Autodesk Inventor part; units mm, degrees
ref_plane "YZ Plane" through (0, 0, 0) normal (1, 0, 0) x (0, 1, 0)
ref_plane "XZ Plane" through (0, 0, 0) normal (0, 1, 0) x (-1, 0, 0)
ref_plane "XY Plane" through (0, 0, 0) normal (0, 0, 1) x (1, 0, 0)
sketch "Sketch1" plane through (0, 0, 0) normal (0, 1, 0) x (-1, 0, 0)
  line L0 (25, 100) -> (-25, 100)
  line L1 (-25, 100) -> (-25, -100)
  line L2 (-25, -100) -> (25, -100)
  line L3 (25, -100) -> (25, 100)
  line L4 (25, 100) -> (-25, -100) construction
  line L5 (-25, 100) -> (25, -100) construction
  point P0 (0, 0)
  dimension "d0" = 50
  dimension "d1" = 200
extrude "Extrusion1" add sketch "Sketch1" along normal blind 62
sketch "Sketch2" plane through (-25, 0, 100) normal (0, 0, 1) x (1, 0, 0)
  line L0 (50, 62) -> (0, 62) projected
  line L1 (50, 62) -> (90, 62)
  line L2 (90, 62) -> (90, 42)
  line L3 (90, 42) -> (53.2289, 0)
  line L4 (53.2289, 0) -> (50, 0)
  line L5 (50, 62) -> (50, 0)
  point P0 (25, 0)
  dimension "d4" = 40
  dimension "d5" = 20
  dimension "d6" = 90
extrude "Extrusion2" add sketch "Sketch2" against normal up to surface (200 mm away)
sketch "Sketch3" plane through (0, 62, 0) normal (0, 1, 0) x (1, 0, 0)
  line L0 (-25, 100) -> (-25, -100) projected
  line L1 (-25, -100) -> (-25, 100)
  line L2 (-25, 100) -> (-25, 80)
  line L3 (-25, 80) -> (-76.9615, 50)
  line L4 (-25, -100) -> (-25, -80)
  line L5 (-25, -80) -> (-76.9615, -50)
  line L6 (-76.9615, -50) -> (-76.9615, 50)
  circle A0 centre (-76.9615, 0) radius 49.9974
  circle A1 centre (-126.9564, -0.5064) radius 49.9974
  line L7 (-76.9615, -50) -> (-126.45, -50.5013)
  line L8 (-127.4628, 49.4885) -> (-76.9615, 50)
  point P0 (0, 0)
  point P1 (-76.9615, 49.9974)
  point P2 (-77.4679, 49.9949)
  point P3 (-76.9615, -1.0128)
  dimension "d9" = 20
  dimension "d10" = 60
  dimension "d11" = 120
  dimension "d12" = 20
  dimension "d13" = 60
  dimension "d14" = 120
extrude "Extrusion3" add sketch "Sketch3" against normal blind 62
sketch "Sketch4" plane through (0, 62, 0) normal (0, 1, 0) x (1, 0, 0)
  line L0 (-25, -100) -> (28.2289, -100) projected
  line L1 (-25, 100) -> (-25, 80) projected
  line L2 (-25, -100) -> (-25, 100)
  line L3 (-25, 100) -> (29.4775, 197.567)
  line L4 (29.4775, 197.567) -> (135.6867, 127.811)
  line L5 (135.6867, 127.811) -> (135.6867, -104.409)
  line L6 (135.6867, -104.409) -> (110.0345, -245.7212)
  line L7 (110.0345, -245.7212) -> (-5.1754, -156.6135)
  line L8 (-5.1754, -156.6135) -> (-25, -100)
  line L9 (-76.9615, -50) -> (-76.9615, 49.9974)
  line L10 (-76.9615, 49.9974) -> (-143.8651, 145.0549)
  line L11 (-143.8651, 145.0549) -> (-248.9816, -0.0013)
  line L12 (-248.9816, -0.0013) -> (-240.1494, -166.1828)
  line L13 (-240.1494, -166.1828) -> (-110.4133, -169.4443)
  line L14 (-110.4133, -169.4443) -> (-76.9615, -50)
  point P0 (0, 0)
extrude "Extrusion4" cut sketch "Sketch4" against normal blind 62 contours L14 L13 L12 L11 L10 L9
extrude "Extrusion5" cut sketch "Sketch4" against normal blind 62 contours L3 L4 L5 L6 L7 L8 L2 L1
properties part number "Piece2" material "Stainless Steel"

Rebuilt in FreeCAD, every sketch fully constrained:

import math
import FreeCAD as App
import Part
import Sketcher
from FreeCAD import Vector
Q = App.Units.Quantity

doc = App.newDocument("Part")
body = doc.addObject("PartDesign::Body", "Body")

# Sketch on XZ plane
sketch1 = doc.addObject("Sketcher::SketchObject", "Sketch")
body.addObject(sketch1)
sketch1.AttachmentSupport = (doc.XZ_Plane, [""])
sketch1.MapMode = "FlatFace"
sketch1.addGeometry([
    Part.LineSegment(Vector(-25, -100, 0), Vector(-25, 100, 0)),
    Part.LineSegment(Vector(-25, 100, 0), Vector(25, 100, 0)),
    Part.LineSegment(Vector(25, 100, 0), Vector(25, -100, 0)),
    Part.LineSegment(Vector(25, -100, 0), Vector(-25, -100, 0)),
], False)
sketch1.addConstraint([
    Sketcher.Constraint("Coincident", 0, 2, 1, 1),
    Sketcher.Constraint("Coincident", 1, 2, 2, 1),
    Sketcher.Constraint("Coincident", 2, 2, 3, 1),
    Sketcher.Constraint("Coincident", 3, 2, 0, 1),
    Sketcher.Constraint("Vertical", 0),
    Sketcher.Constraint("Horizontal", 1),
    Sketcher.Constraint("Vertical", 2),
    Sketcher.Constraint("Horizontal", 3),
    Sketcher.Constraint("Symmetric", 0, 2, 2, 2, -1, 1),
    Sketcher.Constraint("DistanceX", 1, 1, 1, 2, 50.0),
    Sketcher.Constraint("DistanceY", 0, 1, 0, 2, 200.0),
])
pad1 = doc.addObject("PartDesign::Pad", "Pad")
body.addObject(pad1)
pad1.Profile = sketch1
pad1.Length = 62
pad1.Reversed = True

# Sketch on XY plane
sketch2 = doc.addObject("Sketcher::SketchObject", "Sketch001")
body.addObject(sketch2)
sketch2.AttachmentSupport = (doc.XY_Plane, [""])
sketch2.MapMode = "FlatFace"
sketch2.AttachmentOffset = App.Placement(Vector(0, 0, 100), App.Rotation())
sketch2.addGeometry([
    Part.LineSegment(Vector(65, 62, 0), Vector(25, 62, 0)),  # 0
    Part.LineSegment(Vector(25, 62, 0), Vector(25, 0, 0)),  # 1
    Part.LineSegment(Vector(25, 0, 0), Vector(28.2, 0, 0)),  # 2
    Part.LineSegment(Vector(28.2, 0, 0), Vector(65, 42, 0)),  # 3
    Part.LineSegment(Vector(65, 42, 0), Vector(65, 62, 0)),  # 4
], False)
sketch2.addConstraint([
    Sketcher.Constraint("Coincident", 0, 2, 1, 1),
    Sketcher.Constraint("Coincident", 1, 2, 2, 1),
    Sketcher.Constraint("Coincident", 2, 2, 3, 1),
    Sketcher.Constraint("Coincident", 3, 2, 4, 1),
    Sketcher.Constraint("Coincident", 4, 2, 0, 1),
    Sketcher.Constraint("Horizontal", 0),
    Sketcher.Constraint("Vertical", 1),
    Sketcher.Constraint("Horizontal", 2),
    Sketcher.Constraint("Vertical", 4),
    Sketcher.Constraint("PointOnObject", 1, 2, -1),
    Sketcher.Constraint("DistanceX", 0, 2, 0, 1, 40.0),
    Sketcher.Constraint("DistanceY", 4, 1, 4, 2, 20.0),
    Sketcher.Constraint("DistanceY", 1, 2, 1, 1, 62.0),
    Sketcher.Constraint("DistanceX", -1, 1, 0, 2, 25.0),
    Sketcher.Constraint("DistanceX", 2, 1, 2, 2, 3.229),
])
pad2 = doc.addObject("PartDesign::Pad", "Pad001")
body.addObject(pad2)
pad2.Profile = sketch2
pad2.Length = 200
pad2.Reversed = True

# Sketch on XZ plane
sketch3 = doc.addObject("Sketcher::SketchObject", "Sketch002")
body.addObject(sketch3)
sketch3.AttachmentSupport = (doc.XZ_Plane, [""])
sketch3.MapMode = "FlatFace"
sketch3.AttachmentOffset = App.Placement(Vector(0, 0, -62), App.Rotation())
sketch3.addGeometry([
    Part.LineSegment(Vector(-25, 80, 0), Vector(-25, -80, 0)),  # 0
    Part.LineSegment(Vector(-25, -80, 0), Vector(-77, -50, 0)),  # 1
    Part.LineSegment(Vector(-77, -50, 0), Vector(-127, -49, 0)),  # 2
    Part.ArcOfCircle(Part.Circle(Vector(-127, 1, 0), Vector(0, 0, 1), 50), math.radians(89), math.radians(269)),  # 3
    Part.LineSegment(Vector(-126, 51, 0), Vector(-77, 50, 0)),  # 4
    Part.LineSegment(Vector(-77, 50, 0), Vector(-25, 80, 0)),  # 5
], False)
sketch3.addConstraint([
    Sketcher.Constraint("Coincident", 0, 2, 1, 1),
    Sketcher.Constraint("Coincident", 1, 2, 2, 1),
    Sketcher.Constraint("Tangent", 2, 2, 3, 2),
    Sketcher.Constraint("Tangent", 3, 1, 4, 1),
    Sketcher.Constraint("Coincident", 4, 2, 5, 1),
    Sketcher.Constraint("Coincident", 5, 2, 0, 1),
    Sketcher.Constraint("Vertical", 0),
    Sketcher.Constraint("Symmetric", 1, 2, 4, 2, -1),
    Sketcher.Constraint("Parallel", 2, 4),
    Sketcher.Constraint("Equal", 1, 5),
    Sketcher.Constraint("Distance", 1, 60.0),
    Sketcher.Constraint("DistanceY", 0, 2, 0, 1, 160.0),
    Sketcher.Constraint("Angle", 1, Q("150 deg")),
    Sketcher.Constraint("DistanceX", 0, 2, -1, 1, 25.0),
    Sketcher.Constraint("Angle", 2, Q("179.4197 deg")),
    Sketcher.Constraint("DistanceX", 3, 1, -1, 1, 126.45),
])
pad3 = doc.addObject("PartDesign::Pad", "Pad002")
body.addObject(pad3)
pad3.Profile = sketch3
pad3.Length = 62

# Sketch on XZ plane
sketch4 = doc.addObject("Sketcher::SketchObject", "Sketch003")
body.addObject(sketch4)
sketch4.AttachmentSupport = (doc.XZ_Plane, [""])
sketch4.MapMode = "FlatFace"
sketch4.AttachmentOffset = App.Placement(Vector(0, 0, -62), App.Rotation())
sketch4.addGeometry([
    Part.LineSegment(Vector(-110, 169, 0), Vector(-77, 50, 0)),  # 0
    Part.LineSegment(Vector(-77, 50, 0), Vector(-77, -50, 0)),  # 1
    Part.LineSegment(Vector(-77, -50, 0), Vector(-144, -145, 0)),  # 2
    Part.LineSegment(Vector(-144, -145, 0), Vector(-249, 0, 0)),  # 3
    Part.LineSegment(Vector(-249, 0, 0), Vector(-240, 166, 0)),  # 4
    Part.LineSegment(Vector(-240, 166, 0), Vector(-110, 169, 0)),  # 5
], False)
sketch4.addConstraint([
    Sketcher.Constraint("Coincident", 0, 2, 1, 1),
    Sketcher.Constraint("Coincident", 1, 2, 2, 1),
    Sketcher.Constraint("Coincident", 2, 2, 3, 1),
    Sketcher.Constraint("Coincident", 3, 2, 4, 1),
    Sketcher.Constraint("Coincident", 4, 2, 5, 1),
    Sketcher.Constraint("Coincident", 5, 2, 0, 1),
    Sketcher.Constraint("Vertical", 1),
    Sketcher.Constraint("DistanceY", -1, 1, 0, 2, 50.0),
    Sketcher.Constraint("Angle", 3, Q("125.9294 deg")),
    Sketcher.Constraint("Angle", 5, Q("1.44 deg")),
    Sketcher.Constraint("DistanceX", 3, 2, 0, 2, 172.02),
    Sketcher.Constraint("Distance", 3, 179.139),
    Sketcher.Constraint("Distance", 4, 166.416),
    Sketcher.Constraint("Distance", 5, 129.777),
    Sketcher.Constraint("DistanceY", 1, 2, 1, 1, 99.9974),
    Sketcher.Constraint("DistanceX", 2, 2, -1, 1, 143.865),
    Sketcher.Constraint("DistanceY", 2, 2, -1, 1, 145.055),
    Sketcher.Constraint("DistanceX", 4, 2, 0, 2, 163.188),
])
pocket1 = doc.addObject("PartDesign::Pocket", "Pocket")
body.addObject(pocket1)
pocket1.Profile = sketch4
pocket1.Length = 62
pocket1.Reversed = True

# Sketch on XZ plane
sketch5 = doc.addObject("Sketcher::SketchObject", "Sketch004")
body.addObject(sketch5)
sketch5.AttachmentSupport = (doc.XZ_Plane, [""])
sketch5.MapMode = "FlatFace"
sketch5.AttachmentOffset = App.Placement(Vector(0, 0, -62), App.Rotation())
sketch5.addGeometry([
    Part.LineSegment(Vector(29, -198, 0), Vector(-25, -100, 0)),  # 0
    Part.LineSegment(Vector(-25, -100, 0), Vector(-25, 100, 0)),  # 1
    Part.LineSegment(Vector(-25, 100, 0), Vector(-5, 157, 0)),  # 2
    Part.LineSegment(Vector(-5, 157, 0), Vector(110, 246, 0)),  # 3
    Part.LineSegment(Vector(110, 246, 0), Vector(136, 104, 0)),  # 4
    Part.LineSegment(Vector(136, 104, 0), Vector(136, -128, 0)),  # 5
    Part.LineSegment(Vector(136, -128, 0), Vector(29, -198, 0)),  # 6
], False)
sketch5.addConstraint([
    Sketcher.Constraint("Coincident", 0, 2, 1, 1),
    Sketcher.Constraint("Coincident", 1, 2, 2, 1),
    Sketcher.Constraint("Coincident", 2, 2, 3, 1),
    Sketcher.Constraint("Coincident", 3, 2, 4, 1),
    Sketcher.Constraint("Coincident", 4, 2, 5, 1),
    Sketcher.Constraint("Coincident", 5, 2, 6, 1),
    Sketcher.Constraint("Coincident", 6, 2, 0, 1),
    Sketcher.Constraint("Vertical", 1),
    Sketcher.Constraint("Vertical", 5),
    Sketcher.Constraint("DistanceY", 1, 1, 1, 2, 200.0),
    Sketcher.Constraint("DistanceX", 0, 2, -1, 1, 25.0),
    Sketcher.Constraint("DistanceY", 0, 2, -1, 1, 100.0),
    Sketcher.Constraint("Angle", 2, Q("70.701 deg")),
    Sketcher.Constraint("DistanceY", 5, 2, 5, 1, 232.22),
    Sketcher.Constraint("Angle", 3, Q("37.7197 deg")),
    Sketcher.Constraint("DistanceX", 2, 2, 3, 2, 115.21),
    Sketcher.Constraint("Distance", 6, 127.068),
    Sketcher.Constraint("DistanceY", -1, 1, 4, 2, 104.409),
    Sketcher.Constraint("DistanceY", 6, 2, -1, 1, 197.567),
    Sketcher.Constraint("DistanceX", 2, 2, 4, 2, 140.862),
    Sketcher.Constraint("Distance", 0, 111.7458),
])
pocket2 = doc.addObject("PartDesign::Pocket", "Pocket001")
body.addObject(pocket2)
pocket2.Profile = sketch5
pocket2.Length = 62
pocket2.Reversed = True

doc.recompute()
